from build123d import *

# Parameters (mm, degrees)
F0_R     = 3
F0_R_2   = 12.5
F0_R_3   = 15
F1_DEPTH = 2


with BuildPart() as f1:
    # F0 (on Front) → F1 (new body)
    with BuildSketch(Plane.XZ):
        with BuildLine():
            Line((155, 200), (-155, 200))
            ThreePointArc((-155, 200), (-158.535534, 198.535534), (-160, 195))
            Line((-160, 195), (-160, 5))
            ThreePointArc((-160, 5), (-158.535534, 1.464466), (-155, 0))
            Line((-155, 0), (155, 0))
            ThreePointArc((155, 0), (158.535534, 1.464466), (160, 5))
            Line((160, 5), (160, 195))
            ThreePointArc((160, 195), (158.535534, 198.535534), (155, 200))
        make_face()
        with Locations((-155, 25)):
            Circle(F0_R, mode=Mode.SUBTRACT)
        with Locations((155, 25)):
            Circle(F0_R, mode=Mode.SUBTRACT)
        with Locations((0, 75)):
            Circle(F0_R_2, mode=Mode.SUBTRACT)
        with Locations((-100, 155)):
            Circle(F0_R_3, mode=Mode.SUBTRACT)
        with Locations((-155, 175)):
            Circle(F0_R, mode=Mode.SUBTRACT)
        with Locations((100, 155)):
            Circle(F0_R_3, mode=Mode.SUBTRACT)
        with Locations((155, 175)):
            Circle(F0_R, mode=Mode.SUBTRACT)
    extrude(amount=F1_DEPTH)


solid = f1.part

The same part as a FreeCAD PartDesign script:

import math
import FreeCAD as App
import Part
import Sketcher
Q = App.Units.Quantity

doc = App.newDocument("Part")
body = doc.addObject("PartDesign::Body", "Body")

# Sketch on XZ plane
sketch1 = body.newObject("Sketcher::SketchObject", "Sketch")
sketch1.AttachmentSupport = (doc.getObject("XZ_Plane"), [""])
sketch1.MapMode = "FlatFace"
sketch1.addGeometry([
    Part.LineSegment(App.Vector(155, 200, 0), App.Vector(-155, 200, 0)),  # 0
    Part.ArcOfCircle(Part.Circle(App.Vector(-155, 195, 0), App.Vector(0, 0, 1), 5), math.radians(90), math.radians(180)),  # 1
    Part.LineSegment(App.Vector(-160, 195, 0), App.Vector(-160, 5, 0)),  # 2
    Part.ArcOfCircle(Part.Circle(App.Vector(-155, 5, 0), App.Vector(0, 0, 1), 5), math.radians(180), math.radians(270)),  # 3
    Part.LineSegment(App.Vector(-155, 0, 0), App.Vector(155, 0, 0)),  # 4
    Part.ArcOfCircle(Part.Circle(App.Vector(155, 5, 0), App.Vector(0, 0, 1), 5), math.radians(-90), math.radians(0)),  # 5
    Part.LineSegment(App.Vector(160, 5, 0), App.Vector(160, 195, 0)),  # 6
    Part.ArcOfCircle(Part.Circle(App.Vector(155, 195, 0), App.Vector(0, 0, 1), 5), math.radians(0), math.radians(90)),  # 7
    Part.Circle(App.Vector(-155, 25, 0), App.Vector(0, 0, 1), 3),  # 8
    Part.Circle(App.Vector(155, 25, 0), App.Vector(0, 0, 1), 3),  # 9
    Part.Circle(App.Vector(0, 75, 0), App.Vector(0, 0, 1), 12.5),  # 10
    Part.Circle(App.Vector(-100, 155, 0), App.Vector(0, 0, 1), 15),  # 11
    Part.Circle(App.Vector(-155, 175, 0), App.Vector(0, 0, 1), 3),  # 12
    Part.Circle(App.Vector(100, 155, 0), App.Vector(0, 0, 1), 15),  # 13
    Part.Circle(App.Vector(155, 175, 0), App.Vector(0, 0, 1), 3),  # 14
], False)
sketch1.addConstraint([
    Sketcher.Constraint("Tangent", 0, 2, 1, 1),
    Sketcher.Constraint("Tangent", 1, 2, 2, 1),
    Sketcher.Constraint("Tangent", 2, 2, 3, 1),
    Sketcher.Constraint("Tangent", 3, 2, 4, 1),
    Sketcher.Constraint("Tangent", 4, 2, 5, 1),
    Sketcher.Constraint("Tangent", 5, 2, 6, 1),
    Sketcher.Constraint("Tangent", 6, 2, 7, 1),
    Sketcher.Constraint("Tangent", 7, 2, 0, 1),
    Sketcher.Constraint("Horizontal", 0),
    Sketcher.Constraint("Vertical", 2),
    Sketcher.Constraint("Horizontal", 4),
    Sketcher.Constraint("Vertical", 6),
    Sketcher.Constraint("Equal", 1, 3),
    Sketcher.Constraint("Equal", 3, 5),
    Sketcher.Constraint("Equal", 5, 7),
    Sketcher.Constraint("Equal", 8, 9),
    Sketcher.Constraint("Equal", 9, 12),
    Sketcher.Constraint("Equal", 11, 13),
    Sketcher.Constraint("Equal", 12, 14),
    Sketcher.Constraint("Symmetric", 3, 2, 4, 2, -1, 1),
    Sketcher.Constraint("Symmetric", 8, 3, 9, 3, -2),
    Sketcher.Constraint("Symmetric", 11, 3, 13, 3, -2),
    Sketcher.Constraint("Symmetric", 12, 3, 14, 3, -2),
    Sketcher.Constraint("PointOnObject", 10, 3, -2),
    Sketcher.Constraint("Vertical", 3, 3, 8, 3),
    Sketcher.Constraint("Vertical", 8, 3, 12, 3),
    Sketcher.Constraint("Diameter", 8, Q("6 mm")),
    Sketcher.Constraint("Diameter", 10, Q("25 mm")),
    Sketcher.Constraint("Diameter", 11, Q("30 mm")),
    Sketcher.Constraint("Radius", 1, Q("5 mm")),
    Sketcher.Constraint("DistanceX", 0, 2, 0, 1, Q("310 mm")),
    Sketcher.Constraint("DistanceY", 2, 2, 2, 1, Q("190 mm")),
    Sketcher.Constraint("DistanceY", -1, 1, 8, 3, Q("25 mm")),
    Sketcher.Constraint("DistanceY", -1, 1, 10, 3, Q("75 mm")),
    Sketcher.Constraint("DistanceX", 11, 3, -1, 1, Q("100 mm")),
    Sketcher.Constraint("DistanceY", -1, 1, 11, 3, Q("155 mm")),
    Sketcher.Constraint("DistanceY", -1, 1, 12, 3, Q("175 mm")),
])
pad1 = body.newObject("PartDesign::Pad", "Pad")
pad1.Profile = sketch1
pad1.Length = 2

doc.recompute()
